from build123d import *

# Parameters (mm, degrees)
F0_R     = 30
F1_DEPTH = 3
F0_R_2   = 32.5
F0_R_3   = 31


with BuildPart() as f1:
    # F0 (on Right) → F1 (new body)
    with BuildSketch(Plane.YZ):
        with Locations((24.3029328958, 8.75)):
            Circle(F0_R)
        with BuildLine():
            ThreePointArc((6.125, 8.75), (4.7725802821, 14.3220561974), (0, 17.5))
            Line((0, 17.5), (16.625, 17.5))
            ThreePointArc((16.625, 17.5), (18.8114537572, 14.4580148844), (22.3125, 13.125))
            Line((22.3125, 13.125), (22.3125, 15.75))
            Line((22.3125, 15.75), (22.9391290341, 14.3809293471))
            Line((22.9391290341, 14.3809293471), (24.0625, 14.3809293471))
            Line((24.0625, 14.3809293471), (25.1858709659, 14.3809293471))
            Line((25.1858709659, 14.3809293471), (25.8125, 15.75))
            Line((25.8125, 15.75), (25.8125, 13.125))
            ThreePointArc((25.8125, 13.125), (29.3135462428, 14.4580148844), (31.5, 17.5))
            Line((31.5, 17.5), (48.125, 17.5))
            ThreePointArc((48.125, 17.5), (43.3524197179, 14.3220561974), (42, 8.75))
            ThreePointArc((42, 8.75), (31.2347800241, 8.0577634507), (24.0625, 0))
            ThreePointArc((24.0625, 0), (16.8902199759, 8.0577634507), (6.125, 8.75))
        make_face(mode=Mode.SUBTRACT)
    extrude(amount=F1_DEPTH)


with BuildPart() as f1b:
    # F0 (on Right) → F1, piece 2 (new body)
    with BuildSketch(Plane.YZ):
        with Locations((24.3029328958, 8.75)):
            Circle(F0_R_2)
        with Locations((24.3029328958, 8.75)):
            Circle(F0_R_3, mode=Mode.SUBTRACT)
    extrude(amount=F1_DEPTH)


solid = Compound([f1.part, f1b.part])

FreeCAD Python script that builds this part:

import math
import FreeCAD as App
import Part
import Sketcher
Q = App.Units.Quantity

doc = App.newDocument("Part")
body = doc.addObject("PartDesign::Body", "Body")

sketch1 = body.newObject("Sketcher::SketchObject", "Sketch")
sketch1.AttachmentSupport = (doc.getObject("YZ_Plane"), [""])
sketch1.MapMode = "FlatFace"
sketch1.addGeometry([
    Part.Circle(App.Vector(24.3, 8.8, 0), App.Vector(0, 0, 1), 30),
    Part.ArcOfCircle(Part.Circle(App.Vector(10.7, -4.7, 0), App.Vector(0, 0, 1), 14.2), math.radians(19), math.radians(109)),
    Part.ArcOfCircle(Part.Circle(App.Vector(-1.7, 9.8, 0), App.Vector(0, 0, 1), 7.9), math.radians(-8), math.radians(78)),
    Part.LineSegment(App.Vector(0, 17.5, 0), App.Vector(16.6, 17.5, 0)),
    Part.ArcOfCircle(Part.Circle(App.Vector(22.8, 19.6, 0), App.Vector(0, 0, 1), 6.5), math.radians(-161), math.radians(-94)),
    Part.LineSegment(App.Vector(22.3, 13.1, 0), App.Vector(22.3, 15.8, 0)),
    Part.LineSegment(App.Vector(22.3, 15.8, 0), App.Vector(22.9, 14.4, 0)),
    Part.LineSegment(App.Vector(22.9, 14.4, 0), App.Vector(25.2, 14.4, 0)),
    Part.LineSegment(App.Vector(25.2, 14.4, 0), App.Vector(25.8, 15.8, 0)),
    Part.LineSegment(App.Vector(25.8, 15.8, 0), App.Vector(25.8, 13.1, 0)),
    Part.ArcOfCircle(Part.Circle(App.Vector(25.3, 19.6, 0), App.Vector(0, 0, 1), 6.5), math.radians(-86), math.radians(-19)),
    Part.LineSegment(App.Vector(31.5, 17.5, 0), App.Vector(48.1, 17.5, 0)),
    Part.ArcOfCircle(Part.Circle(App.Vector(49.8, 9.8, 0), App.Vector(0, 0, 1), 7.9), math.radians(102), math.radians(188)),
    Part.ArcOfCircle(Part.Circle(App.Vector(37.5, -4.7, 0), App.Vector(0, 0, 1), 14.2), math.radians(71), math.radians(161)),
], False)
sketch1.addConstraint([
    Sketcher.Constraint("Coincident", 1, 2, 2, 1),
    Sketcher.Constraint("Coincident", 2, 2, 3, 1),
    Sketcher.Constraint("Coincident", 3, 2, 4, 1),
    Sketcher.Constraint("Coincident", 4, 2, 5, 1),
    Sketcher.Constraint("Coincident", 5, 2, 6, 1),
    Sketcher.Constraint("Coincident", 6, 2, 7, 1),
    Sketcher.Constraint("Coincident", 7, 2, 8, 1),
    Sketcher.Constraint("Coincident", 8, 2, 9, 1),
    Sketcher.Constraint("Coincident", 9, 2, 10, 1),
    Sketcher.Constraint("Coincident", 10, 2, 11, 1),
    Sketcher.Constraint("Coincident", 11, 2, 12, 1),
    Sketcher.Constraint("Coincident", 12, 2, 13, 1),
    Sketcher.Constraint("Coincident", 13, 2, 1, 1),
    Sketcher.Constraint("Horizontal", 3),
    Sketcher.Constraint("Vertical", 5),
    Sketcher.Constraint("Horizontal", 7),
    Sketcher.Constraint("Vertical", 9),
    Sketcher.Constraint("Horizontal", 11),
    Sketcher.Constraint("Equal", 4, 10),
    Sketcher.Constraint("Equal", 2, 12),
    Sketcher.Constraint("Equal", 1, 13),
    Sketcher.Constraint("PointOnObject", 2, 2, -2),
    Sketcher.Constraint("PointOnObject", 13, 2, -1),
    Sketcher.Constraint("Horizontal", 4, 3, 10, 3),
    Sketcher.Constraint("Horizontal", 2, 3, 12, 3),
    Sketcher.Constraint("Horizontal", 1, 3, 13, 3),
    Sketcher.Constraint("Horizontal", 0, 3, 1, 2),
    Sketcher.Constraint("Horizontal", 5, 2, 8, 2),
    Sketcher.Constraint("Horizontal", 4, 2, 9, 2),
    Sketcher.Constraint("Horizontal", 3, 2, 10, 2),
    Sketcher.Constraint("Horizontal", 1, 2, 12, 2),
    Sketcher.Constraint("Equal", 3, 11),
    Sketcher.Constraint("Equal", 6, 8),
    Sketcher.Constraint("Diameter", 0, Q("60 mm")),
    Sketcher.Constraint("DistanceX", -1, 1, 12, 2, Q("42 mm")),
    Sketcher.Constraint("Radius", 2, Q("7.875 mm")),
    Sketcher.Constraint("DistanceY", 0, 3, 5, 2, Q("7 mm")),
    Sketcher.Constraint("DistanceY", -1, 1, 2, 2, Q("17.5 mm")),
    Sketcher.Constraint("DistanceX", -1, 1, 10, 2, Q("31.5 mm")),
    Sketcher.Constraint("DistanceX", 5, 2, 8, 2, Q("3.5 mm")),
    Sketcher.Constraint("DistanceX", 3, 1, 3, 2, Q("16.625 mm")),
    Sketcher.Constraint("DistanceY", 5, 1, 5, 2, Q("2.625 mm")),
    Sketcher.Constraint("DistanceY", -1, 1, 0, 3, Q("8.75 mm")),
    Sketcher.Constraint("Radius", 1, Q("14.199788 mm")),
    Sketcher.Constraint("Radius", 4, Q("6.509116 mm")),
    Sketcher.Constraint("DistanceX", 7, 1, 7, 2, Q("2.246742 mm")),
    Sketcher.Constraint("DistanceX", 4, 3, 0, 3, Q("1.522801 mm")),
    Sketcher.Constraint("DistanceY", -1, 1, 6, 2, Q("14.380929 mm")),
])
pad1 = body.newObject("PartDesign::Pad", "Pad")
pad1.Profile = sketch1
pad1.Length = 3
body2 = doc.addObject("PartDesign::Body", "Body001")

sketch2 = body2.newObject("Sketcher::SketchObject", "Sketch001")
sketch2.AttachmentSupport = (doc.getObject("YZ_Plane001"), [""])
sketch2.MapMode = "FlatFace"
sketch2.addGeometry([
    Part.Circle(App.Vector(24, 9, 0), App.Vector(0, 0, 1), 32),
    Part.Circle(App.Vector(24, 9, 0), App.Vector(0, 0, 1), 31),
], False)
sketch2.addConstraint([
    Sketcher.Constraint("Coincident", 1, 3, 0, 3),
    Sketcher.Constraint("Diameter", 0, Q("65 mm")),
    Sketcher.Constraint("Diameter", 1, Q("62 mm")),
    Sketcher.Constraint("DistanceY", -1, 1, 0, 3, Q("8.75 mm")),
    Sketcher.Constraint("DistanceX", -1, 1, 0, 3, Q("24.302933 mm")),
])
pad2 = body2.newObject("PartDesign::Pad", "Pad001")
pad2.Profile = sketch2
pad2.Length = 3

doc.recompute()
